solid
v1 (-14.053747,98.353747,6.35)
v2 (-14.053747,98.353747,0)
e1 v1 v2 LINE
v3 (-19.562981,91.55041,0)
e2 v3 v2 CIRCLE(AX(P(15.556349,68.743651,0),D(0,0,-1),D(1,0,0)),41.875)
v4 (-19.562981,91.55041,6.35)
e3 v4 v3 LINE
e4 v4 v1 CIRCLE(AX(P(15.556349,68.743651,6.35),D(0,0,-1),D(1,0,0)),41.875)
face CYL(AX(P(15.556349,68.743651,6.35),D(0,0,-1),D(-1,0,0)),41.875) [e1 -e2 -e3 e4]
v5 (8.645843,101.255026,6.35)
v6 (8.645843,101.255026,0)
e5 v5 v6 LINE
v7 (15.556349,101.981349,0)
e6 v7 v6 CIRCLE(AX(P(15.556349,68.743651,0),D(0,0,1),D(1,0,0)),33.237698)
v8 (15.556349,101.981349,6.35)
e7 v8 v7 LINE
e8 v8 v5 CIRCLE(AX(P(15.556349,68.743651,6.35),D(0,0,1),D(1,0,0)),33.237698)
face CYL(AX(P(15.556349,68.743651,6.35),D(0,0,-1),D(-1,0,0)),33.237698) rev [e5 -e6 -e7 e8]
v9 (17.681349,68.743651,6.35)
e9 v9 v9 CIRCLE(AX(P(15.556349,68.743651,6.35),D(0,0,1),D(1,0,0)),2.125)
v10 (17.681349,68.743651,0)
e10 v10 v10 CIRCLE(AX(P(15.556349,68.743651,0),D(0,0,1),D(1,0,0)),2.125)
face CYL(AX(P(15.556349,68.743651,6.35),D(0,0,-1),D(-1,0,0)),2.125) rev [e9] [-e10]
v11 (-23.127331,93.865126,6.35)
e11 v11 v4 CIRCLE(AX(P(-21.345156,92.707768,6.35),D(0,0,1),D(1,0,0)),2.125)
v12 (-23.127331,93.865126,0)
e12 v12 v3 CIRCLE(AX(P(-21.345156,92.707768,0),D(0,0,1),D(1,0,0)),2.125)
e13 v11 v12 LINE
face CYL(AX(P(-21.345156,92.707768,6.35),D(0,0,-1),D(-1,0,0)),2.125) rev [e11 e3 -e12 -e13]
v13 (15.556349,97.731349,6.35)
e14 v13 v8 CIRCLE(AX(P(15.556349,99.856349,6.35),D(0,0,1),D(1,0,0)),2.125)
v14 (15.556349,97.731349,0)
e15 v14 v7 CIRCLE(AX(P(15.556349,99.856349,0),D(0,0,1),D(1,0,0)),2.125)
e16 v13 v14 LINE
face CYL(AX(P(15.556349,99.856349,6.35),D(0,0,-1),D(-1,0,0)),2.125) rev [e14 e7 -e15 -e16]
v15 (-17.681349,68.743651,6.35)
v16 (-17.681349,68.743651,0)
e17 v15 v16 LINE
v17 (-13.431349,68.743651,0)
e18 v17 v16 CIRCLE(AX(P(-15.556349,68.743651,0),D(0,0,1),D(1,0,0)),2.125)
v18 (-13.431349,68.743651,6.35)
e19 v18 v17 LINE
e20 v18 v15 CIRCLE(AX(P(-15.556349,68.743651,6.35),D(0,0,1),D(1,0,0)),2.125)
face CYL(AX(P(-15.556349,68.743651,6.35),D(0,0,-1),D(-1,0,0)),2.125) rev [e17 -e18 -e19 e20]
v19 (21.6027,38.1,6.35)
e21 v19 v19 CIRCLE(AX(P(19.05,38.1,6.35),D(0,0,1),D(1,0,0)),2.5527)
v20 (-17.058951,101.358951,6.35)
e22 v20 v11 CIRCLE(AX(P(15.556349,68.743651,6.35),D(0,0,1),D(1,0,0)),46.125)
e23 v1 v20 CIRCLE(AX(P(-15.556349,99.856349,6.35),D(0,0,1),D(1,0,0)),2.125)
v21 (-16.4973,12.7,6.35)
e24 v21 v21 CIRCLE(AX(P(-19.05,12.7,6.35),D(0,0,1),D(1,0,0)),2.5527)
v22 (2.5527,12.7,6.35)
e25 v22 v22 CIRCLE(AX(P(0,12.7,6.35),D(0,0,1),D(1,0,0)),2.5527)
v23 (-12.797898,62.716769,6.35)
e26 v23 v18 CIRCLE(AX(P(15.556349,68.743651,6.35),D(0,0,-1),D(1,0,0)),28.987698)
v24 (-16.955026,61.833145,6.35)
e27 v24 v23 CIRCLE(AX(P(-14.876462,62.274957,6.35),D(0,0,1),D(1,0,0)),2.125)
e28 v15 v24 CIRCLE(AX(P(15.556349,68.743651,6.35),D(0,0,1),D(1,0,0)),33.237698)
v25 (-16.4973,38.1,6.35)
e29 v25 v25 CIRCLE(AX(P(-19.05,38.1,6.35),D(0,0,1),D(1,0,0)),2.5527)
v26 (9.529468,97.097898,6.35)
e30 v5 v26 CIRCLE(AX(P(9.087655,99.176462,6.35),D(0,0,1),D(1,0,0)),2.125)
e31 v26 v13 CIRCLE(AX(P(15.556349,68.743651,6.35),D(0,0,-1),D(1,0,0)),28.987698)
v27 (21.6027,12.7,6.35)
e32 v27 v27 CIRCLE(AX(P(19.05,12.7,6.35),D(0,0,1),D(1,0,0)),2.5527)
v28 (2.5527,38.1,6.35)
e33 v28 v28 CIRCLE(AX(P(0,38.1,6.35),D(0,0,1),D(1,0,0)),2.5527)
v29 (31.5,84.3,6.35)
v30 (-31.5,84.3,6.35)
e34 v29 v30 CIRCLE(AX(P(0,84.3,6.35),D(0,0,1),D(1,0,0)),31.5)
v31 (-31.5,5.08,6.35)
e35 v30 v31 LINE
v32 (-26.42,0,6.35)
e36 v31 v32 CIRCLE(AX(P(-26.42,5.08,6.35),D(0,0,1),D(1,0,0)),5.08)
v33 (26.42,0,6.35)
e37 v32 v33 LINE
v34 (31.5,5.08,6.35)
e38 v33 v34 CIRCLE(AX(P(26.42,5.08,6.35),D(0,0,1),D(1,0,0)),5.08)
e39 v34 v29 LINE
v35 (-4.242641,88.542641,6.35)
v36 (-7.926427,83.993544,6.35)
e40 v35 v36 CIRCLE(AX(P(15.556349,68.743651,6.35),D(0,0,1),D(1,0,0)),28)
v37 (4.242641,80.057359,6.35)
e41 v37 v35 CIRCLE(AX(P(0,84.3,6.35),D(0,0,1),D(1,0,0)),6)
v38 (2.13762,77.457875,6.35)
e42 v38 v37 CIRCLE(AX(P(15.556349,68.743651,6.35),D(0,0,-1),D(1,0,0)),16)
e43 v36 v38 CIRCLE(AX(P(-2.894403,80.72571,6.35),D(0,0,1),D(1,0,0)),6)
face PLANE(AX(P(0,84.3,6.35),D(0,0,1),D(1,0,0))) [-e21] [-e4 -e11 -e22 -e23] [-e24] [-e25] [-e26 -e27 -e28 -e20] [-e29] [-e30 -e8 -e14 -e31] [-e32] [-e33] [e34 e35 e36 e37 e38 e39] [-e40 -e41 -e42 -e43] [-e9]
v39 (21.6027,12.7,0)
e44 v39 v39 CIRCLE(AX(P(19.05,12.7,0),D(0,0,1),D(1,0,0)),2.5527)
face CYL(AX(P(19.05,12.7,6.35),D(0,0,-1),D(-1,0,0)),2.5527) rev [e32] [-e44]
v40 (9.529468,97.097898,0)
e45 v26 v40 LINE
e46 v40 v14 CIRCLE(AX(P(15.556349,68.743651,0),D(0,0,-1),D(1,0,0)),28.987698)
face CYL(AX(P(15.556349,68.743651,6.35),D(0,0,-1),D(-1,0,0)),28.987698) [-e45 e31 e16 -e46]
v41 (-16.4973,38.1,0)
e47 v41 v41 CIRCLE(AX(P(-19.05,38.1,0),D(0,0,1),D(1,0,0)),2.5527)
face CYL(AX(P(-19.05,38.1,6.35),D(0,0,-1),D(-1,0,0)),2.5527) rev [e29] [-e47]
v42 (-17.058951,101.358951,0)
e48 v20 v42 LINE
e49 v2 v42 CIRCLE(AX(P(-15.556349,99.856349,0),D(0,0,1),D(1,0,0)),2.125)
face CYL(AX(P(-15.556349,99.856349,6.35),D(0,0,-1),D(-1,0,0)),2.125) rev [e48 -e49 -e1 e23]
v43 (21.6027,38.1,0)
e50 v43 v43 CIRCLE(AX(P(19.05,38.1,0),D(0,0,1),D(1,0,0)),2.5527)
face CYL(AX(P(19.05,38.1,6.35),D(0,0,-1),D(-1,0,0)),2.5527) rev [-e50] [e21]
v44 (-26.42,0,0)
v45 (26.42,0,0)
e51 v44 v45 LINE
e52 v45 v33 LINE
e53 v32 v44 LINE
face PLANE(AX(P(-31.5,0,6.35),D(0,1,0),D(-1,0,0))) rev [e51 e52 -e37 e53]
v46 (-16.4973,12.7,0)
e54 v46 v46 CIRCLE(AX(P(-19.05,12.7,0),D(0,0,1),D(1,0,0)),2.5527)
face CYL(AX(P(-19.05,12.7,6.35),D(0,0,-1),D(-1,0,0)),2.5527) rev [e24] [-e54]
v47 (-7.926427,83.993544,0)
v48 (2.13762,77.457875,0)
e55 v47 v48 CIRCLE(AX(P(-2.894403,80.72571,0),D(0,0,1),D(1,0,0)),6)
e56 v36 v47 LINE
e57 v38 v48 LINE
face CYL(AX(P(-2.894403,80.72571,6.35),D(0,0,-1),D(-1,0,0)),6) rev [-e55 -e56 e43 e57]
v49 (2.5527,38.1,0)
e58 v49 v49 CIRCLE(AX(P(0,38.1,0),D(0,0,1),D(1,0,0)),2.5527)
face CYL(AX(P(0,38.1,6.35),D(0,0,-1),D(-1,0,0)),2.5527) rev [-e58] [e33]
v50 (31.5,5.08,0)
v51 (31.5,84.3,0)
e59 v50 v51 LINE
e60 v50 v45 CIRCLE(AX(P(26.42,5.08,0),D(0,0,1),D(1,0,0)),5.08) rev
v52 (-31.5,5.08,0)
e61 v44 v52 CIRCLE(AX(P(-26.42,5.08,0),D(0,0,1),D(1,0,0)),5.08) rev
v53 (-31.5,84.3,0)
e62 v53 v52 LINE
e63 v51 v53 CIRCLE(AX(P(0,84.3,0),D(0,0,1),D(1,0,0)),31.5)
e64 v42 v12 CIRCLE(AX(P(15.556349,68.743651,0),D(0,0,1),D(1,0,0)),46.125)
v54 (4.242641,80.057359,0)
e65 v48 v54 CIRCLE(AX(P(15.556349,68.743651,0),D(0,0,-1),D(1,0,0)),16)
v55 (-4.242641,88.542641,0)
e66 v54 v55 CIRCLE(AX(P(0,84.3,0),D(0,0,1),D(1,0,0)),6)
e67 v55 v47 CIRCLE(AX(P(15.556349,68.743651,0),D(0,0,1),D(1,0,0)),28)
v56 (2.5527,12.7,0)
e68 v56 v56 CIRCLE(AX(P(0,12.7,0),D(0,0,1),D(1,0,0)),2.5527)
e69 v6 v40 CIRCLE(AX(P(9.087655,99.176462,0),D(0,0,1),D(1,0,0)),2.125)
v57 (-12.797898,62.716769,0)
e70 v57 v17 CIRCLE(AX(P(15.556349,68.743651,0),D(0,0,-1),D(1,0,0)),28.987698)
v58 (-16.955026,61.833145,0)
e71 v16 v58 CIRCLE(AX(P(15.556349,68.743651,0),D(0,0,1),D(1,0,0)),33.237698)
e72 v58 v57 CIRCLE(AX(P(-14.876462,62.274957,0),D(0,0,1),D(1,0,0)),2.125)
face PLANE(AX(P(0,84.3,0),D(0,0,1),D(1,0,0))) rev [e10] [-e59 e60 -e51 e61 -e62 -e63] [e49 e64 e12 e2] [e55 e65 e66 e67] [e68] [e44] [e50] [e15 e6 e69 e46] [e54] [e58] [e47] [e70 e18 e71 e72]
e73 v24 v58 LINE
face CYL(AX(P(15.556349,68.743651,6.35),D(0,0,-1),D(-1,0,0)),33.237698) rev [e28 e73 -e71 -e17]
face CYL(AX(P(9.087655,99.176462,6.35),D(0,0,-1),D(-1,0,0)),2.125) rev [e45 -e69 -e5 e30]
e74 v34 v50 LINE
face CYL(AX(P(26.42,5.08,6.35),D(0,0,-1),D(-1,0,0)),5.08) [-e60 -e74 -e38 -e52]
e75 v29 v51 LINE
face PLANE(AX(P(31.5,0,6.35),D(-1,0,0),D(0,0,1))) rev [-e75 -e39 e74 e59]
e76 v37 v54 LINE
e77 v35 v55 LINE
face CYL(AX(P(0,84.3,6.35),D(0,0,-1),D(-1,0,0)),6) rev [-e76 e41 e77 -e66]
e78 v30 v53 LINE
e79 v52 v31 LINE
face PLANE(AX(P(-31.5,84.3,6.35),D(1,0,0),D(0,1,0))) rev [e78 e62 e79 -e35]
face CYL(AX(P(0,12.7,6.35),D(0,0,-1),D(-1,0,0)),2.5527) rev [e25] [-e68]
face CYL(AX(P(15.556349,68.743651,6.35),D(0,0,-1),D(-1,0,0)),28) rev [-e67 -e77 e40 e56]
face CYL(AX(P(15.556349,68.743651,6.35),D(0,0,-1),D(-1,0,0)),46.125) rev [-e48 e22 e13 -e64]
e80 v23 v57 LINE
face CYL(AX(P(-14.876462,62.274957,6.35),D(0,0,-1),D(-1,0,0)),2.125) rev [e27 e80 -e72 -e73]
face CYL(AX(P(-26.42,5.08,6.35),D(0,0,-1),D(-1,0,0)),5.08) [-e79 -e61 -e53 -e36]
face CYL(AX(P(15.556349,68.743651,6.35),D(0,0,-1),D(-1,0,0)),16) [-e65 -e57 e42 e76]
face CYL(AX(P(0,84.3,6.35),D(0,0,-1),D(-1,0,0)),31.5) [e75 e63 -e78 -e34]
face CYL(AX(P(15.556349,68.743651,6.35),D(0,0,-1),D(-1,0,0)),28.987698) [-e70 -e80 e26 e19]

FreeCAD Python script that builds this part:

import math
import FreeCAD as App
import Part
import Sketcher
Q = App.Units.Quantity


def edges_at(feature, points):
    """Names of the edges that pass closest to the given points."""
    edges = feature.Shape.Edges
    near = lambda p: min(range(len(edges)), key=lambda i: edges[i].distToShape(Part.Vertex(*p))[0])
    return sorted({f"Edge{near(p) + 1}" for p in points})

doc = App.newDocument("Part")
body = doc.addObject("PartDesign::Body", "Body")

sketch1 = doc.addObject("Sketcher::SketchObject", "Sketch")
body.addObject(sketch1)
sketch1.AttachmentSupport = (doc.XY_Plane, [""])
sketch1.MapMode = "FlatFace"
sketch1.addGeometry(Part.LineSegment(App.Vector(31.5, 0, 0), App.Vector(31.5, 84.3, 0)), False)
sketch1.addGeometry(Part.ArcOfCircle(Part.Circle(App.Vector(0, 84.3, 0), App.Vector(0, 0, 1), 31.5), math.radians(0), math.radians(180)), False)
sketch1.addGeometry(Part.LineSegment(App.Vector(-31.5, 84.3, 0), App.Vector(-31.5, 0, 0)), False)
sketch1.addGeometry(Part.LineSegment(App.Vector(-31.5, 0, 0), App.Vector(31.5, 0, 0)), False)
sketch1.addGeometry(Part.Circle(App.Vector(-19.1, 12.7, 0), App.Vector(0, 0, 1), 2.6), False)
sketch1.addGeometry(Part.Circle(App.Vector(-19.1, 38.1, 0), App.Vector(0, 0, 1), 2.6), False)
sketch1.addGeometry(Part.Circle(App.Vector(0, 12.7, 0), App.Vector(0, 0, 1), 2.6), False)
sketch1.addGeometry(Part.Circle(App.Vector(19.1, 12.7, 0), App.Vector(0, 0, 1), 2.6), False)
sketch1.addGeometry(Part.Circle(App.Vector(0, 38.1, 0), App.Vector(0, 0, 1), 2.6), False)
sketch1.addGeometry(Part.Circle(App.Vector(19.1, 38.1, 0), App.Vector(0, 0, 1), 2.6), False)
sketch1.addGeometry(Part.ArcOfCircle(Part.Circle(App.Vector(15.6, 68.7, 0), App.Vector(0, 0, 1), 33.2), math.radians(180), math.radians(192)), False)
sketch1.addGeometry(Part.ArcOfCircle(Part.Circle(App.Vector(-15.6, 68.7, 0), App.Vector(0, 0, 1), 2.1), math.radians(0), math.radians(180)), False)
sketch1.addGeometry(Part.ArcOfCircle(Part.Circle(App.Vector(15.6, 68.7, 0), App.Vector(0, 0, 1), 29), math.radians(-180), math.radians(-168)), False)
sketch1.addGeometry(Part.ArcOfCircle(Part.Circle(App.Vector(-14.9, 62.3, 0), App.Vector(0, 0, 1), 2.1), math.radians(-168), math.radians(12)), False)
sketch1.addGeometry(Part.ArcOfCircle(Part.Circle(App.Vector(15.6, 68.7, 0), App.Vector(0, 0, 1), 46.1), math.radians(135), math.radians(147)), False)
sketch1.addGeometry(Part.ArcOfCircle(Part.Circle(App.Vector(-15.6, 99.9, 0), App.Vector(0, 0, 1), 2.1), math.radians(-45), math.radians(135)), False)
sketch1.addGeometry(Part.ArcOfCircle(Part.Circle(App.Vector(15.6, 68.7, 0), App.Vector(0, 0, 1), 41.9), math.radians(135), math.radians(147)), False)
sketch1.addGeometry(Part.ArcOfCircle(Part.Circle(App.Vector(-21.3, 92.7, 0), App.Vector(0, 0, 1), 2.1), math.radians(147), math.radians(327)), False)
sketch1.addGeometry(Part.ArcOfCircle(Part.Circle(App.Vector(15.6, 68.7, 0), App.Vector(0, 0, 1), 28), math.radians(135), math.radians(147)), False)
sketch1.addGeometry(Part.ArcOfCircle(Part.Circle(App.Vector(0, 84.3, 0), App.Vector(0, 0, 1), 6), math.radians(-45), math.radians(135)), False)
sketch1.addGeometry(Part.ArcOfCircle(Part.Circle(App.Vector(15.6, 68.7, 0), App.Vector(0, 0, 1), 16), math.radians(135), math.radians(147)), False)
sketch1.addGeometry(Part.ArcOfCircle(Part.Circle(App.Vector(-2.9, 80.7, 0), App.Vector(0, 0, 1), 6), math.radians(147), math.radians(327)), False)
sketch1.addGeometry(Part.Circle(App.Vector(15.6, 68.7, 0), App.Vector(0, 0, 1), 2.1), False)
sketch1.addGeometry(Part.ArcOfCircle(Part.Circle(App.Vector(15.6, 68.7, 0), App.Vector(0, 0, 1), 33.2), math.radians(90), math.radians(102)), False)
sketch1.addGeometry(Part.ArcOfCircle(Part.Circle(App.Vector(15.6, 99.9, 0), App.Vector(0, 0, 1), 2.1), math.radians(-90), math.radians(90)), False)
sketch1.addGeometry(Part.ArcOfCircle(Part.Circle(App.Vector(15.6, 68.7, 0), App.Vector(0, 0, 1), 29), math.radians(90), math.radians(102)), False)
sketch1.addGeometry(Part.ArcOfCircle(Part.Circle(App.Vector(9.1, 99.2, 0), App.Vector(0, 0, 1), 2.1), math.radians(102), math.radians(282)), False)
sketch1.addConstraint(Sketcher.Constraint("Tangent", 0, 2, 1, 1))
sketch1.addConstraint(Sketcher.Constraint("Tangent", 1, 2, 2, 1))
sketch1.addConstraint(Sketcher.Constraint("Coincident", 2, 2, 3, 1))
sketch1.addConstraint(Sketcher.Constraint("Coincident", 3, 2, 0, 1))
sketch1.addConstraint(Sketcher.Constraint("Tangent", 10, 1, 11, 2))
sketch1.addConstraint(Sketcher.Constraint("Tangent", 11, 1, 12, 1))
sketch1.addConstraint(Sketcher.Constraint("Tangent", 12, 2, 13, 2))
sketch1.addConstraint(Sketcher.Constraint("Tangent", 13, 1, 10, 2))
sketch1.addConstraint(Sketcher.Constraint("Tangent", 14, 1, 15, 2))
sketch1.addConstraint(Sketcher.Constraint("Tangent", 15, 1, 16, 1))
sketch1.addConstraint(Sketcher.Constraint("Tangent", 16, 2, 17, 2))
sketch1.addConstraint(Sketcher.Constraint("Tangent", 17, 1, 14, 2))
sketch1.addConstraint(Sketcher.Constraint("Tangent", 18, 1, 19, 2))
sketch1.addConstraint(Sketcher.Constraint("Tangent", 19, 1, 20, 1))
sketch1.addConstraint(Sketcher.Constraint("Tangent", 20, 2, 21, 2))
sketch1.addConstraint(Sketcher.Constraint("Tangent", 21, 1, 18, 2))
sketch1.addConstraint(Sketcher.Constraint("Tangent", 23, 1, 24, 2))
sketch1.addConstraint(Sketcher.Constraint("Tangent", 24, 1, 25, 1))
sketch1.addConstraint(Sketcher.Constraint("Tangent", 25, 2, 26, 2))
sketch1.addConstraint(Sketcher.Constraint("Tangent", 26, 1, 23, 2))
sketch1.addConstraint(Sketcher.Constraint("Vertical", 0))
sketch1.addConstraint(Sketcher.Constraint("Vertical", 2))
sketch1.addConstraint(Sketcher.Constraint("Horizontal", 3))
sketch1.addConstraint(Sketcher.Constraint("Coincident", 12, 3, 10, 3))
sketch1.addConstraint(Sketcher.Constraint("Coincident", 14, 3, 10, 3))
sketch1.addConstraint(Sketcher.Constraint("Coincident", 16, 3, 10, 3))
sketch1.addConstraint(Sketcher.Constraint("Coincident", 18, 3, 10, 3))
sketch1.addConstraint(Sketcher.Constraint("Coincident", 19, 3, 1, 3))
sketch1.addConstraint(Sketcher.Constraint("Coincident", 20, 3, 10, 3))
sketch1.addConstraint(Sketcher.Constraint("Coincident", 22, 3, 10, 3))
sketch1.addConstraint(Sketcher.Constraint("Coincident", 23, 3, 10, 3))
sketch1.addConstraint(Sketcher.Constraint("Coincident", 25, 3, 10, 3))
sketch1.addConstraint(Sketcher.Constraint("Equal", 4, 5))
sketch1.addConstraint(Sketcher.Constraint("Equal", 5, 6))
sketch1.addConstraint(Sketcher.Constraint("Equal", 6, 7))
sketch1.addConstraint(Sketcher.Constraint("Equal", 7, 8))
sketch1.addConstraint(Sketcher.Constraint("Equal", 8, 9))
sketch1.addConstraint(Sketcher.Constraint("Equal", 13, 15))
sketch1.addConstraint(Sketcher.Constraint("Equal", 17, 22))
sketch1.addConstraint(Sketcher.Constraint("Equal", 10, 23))
sketch1.addConstraint(Sketcher.Constraint("Equal", 22, 24))
sketch1.addConstraint(Sketcher.Constraint("Symmetric", 2, 2, 3, 2, -1, 1))
sketch1.addConstraint(Sketcher.Constraint("Symmetric", 4, 3, 7, 3, -2))
sketch1.addConstraint(Sketcher.Constraint("Symmetric", 5, 3, 9, 3, -2))
sketch1.addConstraint(Sketcher.Constraint("Symmetric", 10, 3, 11, 3, -2))
sketch1.addConstraint(Sketcher.Constraint("Symmetric", 15, 3, 24, 3, -2))
sketch1.addConstraint(Sketcher.Constraint("PointOnObject", 6, 3, -2))
sketch1.addConstraint(Sketcher.Constraint("PointOnObject", 8, 3, -2))
sketch1.addConstraint(Sketcher.Constraint("Horizontal", 4, 3, 6, 3))
sketch1.addConstraint(Sketcher.Constraint("Horizontal", 5, 3, 8, 3))
sketch1.addConstraint(Sketcher.Constraint("Vertical", 4, 3, 5, 3))
sketch1.addConstraint(Sketcher.Constraint("Vertical", 11, 3, 15, 3))
sketch1.addConstraint(Sketcher.Constraint("Radius", 18, Q("28 mm")))
sketch1.addConstraint(Sketcher.Constraint("Radius", 19, Q("6 mm")))
sketch1.addConstraint(Sketcher.Constraint("Radius", 1, Q("31.5 mm")))
sketch1.addConstraint(Sketcher.Constraint("Diameter", 22, Q("4.25 mm")))
sketch1.addConstraint(Sketcher.Constraint("DistanceY", 0, 1, 0, 2, Q("84.3 mm")))
sketch1.addConstraint(Sketcher.Constraint("Radius", 14, Q("46.125 mm")))
sketch1.addConstraint(Sketcher.Constraint("Diameter", 4, Q("5.1054 mm")))
sketch1.addConstraint(Sketcher.Constraint("DistanceY", -1, 1, 4, 3, Q("12.7 mm")))
sketch1.addConstraint(Sketcher.Constraint("DistanceY", -1, 1, 5, 3, Q("38.1 mm")))
sketch1.addConstraint(Sketcher.Constraint("DistanceX", 4, 3, 7, 3, Q("38.1 mm")))
sketch1.addConstraint(Sketcher.Constraint("DistanceX", 12, 2, -1, 1, Q("12.797898 mm")))
sketch1.addConstraint(Sketcher.Constraint("DistanceY", -1, 1, 25, 2, Q("97.097898 mm")))
sketch1.addConstraint(Sketcher.Constraint("DistanceY", -1, 1, 17, 3, Q("92.707768 mm")))
sketch1.addConstraint(Sketcher.Constraint("DistanceY", -1, 1, 21, 3, Q("80.72571 mm")))
pad1 = doc.addObject("PartDesign::Pad", "Pad")
body.addObject(pad1)
pad1.Profile = sketch1
pad1.Length = 6.35
doc.recompute()

fillet = doc.addObject("PartDesign::Fillet", "Fillet")
body.addObject(fillet)
fillet.Base = (pad1, edges_at(pad1, [(31.5, 0, 3.175), (-31.5, 0, 3.175)]))
fillet.Radius = 5.08

doc.recompute()
